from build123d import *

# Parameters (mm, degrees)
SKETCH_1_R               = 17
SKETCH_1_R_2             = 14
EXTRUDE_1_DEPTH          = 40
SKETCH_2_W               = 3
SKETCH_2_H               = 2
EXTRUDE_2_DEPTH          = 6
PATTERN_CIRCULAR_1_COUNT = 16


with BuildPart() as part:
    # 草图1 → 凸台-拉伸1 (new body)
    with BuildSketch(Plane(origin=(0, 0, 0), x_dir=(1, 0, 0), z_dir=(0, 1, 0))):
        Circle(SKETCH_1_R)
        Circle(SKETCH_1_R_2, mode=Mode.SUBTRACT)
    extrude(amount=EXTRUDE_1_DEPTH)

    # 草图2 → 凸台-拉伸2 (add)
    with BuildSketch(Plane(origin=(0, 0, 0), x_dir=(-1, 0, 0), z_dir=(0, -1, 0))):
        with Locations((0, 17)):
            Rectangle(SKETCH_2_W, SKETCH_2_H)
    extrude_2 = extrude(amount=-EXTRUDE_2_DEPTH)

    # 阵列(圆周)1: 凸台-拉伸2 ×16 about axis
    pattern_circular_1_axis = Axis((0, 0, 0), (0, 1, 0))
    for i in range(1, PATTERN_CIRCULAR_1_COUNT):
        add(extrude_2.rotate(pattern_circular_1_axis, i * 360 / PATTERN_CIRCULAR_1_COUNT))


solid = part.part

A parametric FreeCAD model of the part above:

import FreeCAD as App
import Part
import Sketcher
Q = App.Units.Quantity

doc = App.newDocument("Part")
params = doc.addObject("Spreadsheet::Sheet", "Params")
for row, (alias, value) in enumerate([
    ("sketch1_diameter", "34 mm"),
    ("sketch1_diameter2", "28 mm"),
    ("pad1_length", "40 mm"),
    ("sketch2_width", "3 mm"),
    ("sketch2_height", "2 mm"),
    ("pad2_length", "6 mm"),
], start=1):
    params.set(f"A{row}", alias)
    params.set(f"B{row}", "=" + value)
    params.setAlias(f"B{row}", alias)

body = doc.addObject("PartDesign::Body", "Body")

# Sketch on XZ plane
sketch1 = body.newObject("Sketcher::SketchObject", "Sketch")
sketch1.AttachmentSupport = (doc.getObject("XZ_Plane"), [""])
sketch1.MapMode = "FlatFace"
sketch1.addGeometry(Part.Circle(App.Vector(0, 0, 0), App.Vector(0, 0, 1), 17), False)
sketch1.addGeometry(Part.Circle(App.Vector(0, 0, 0), App.Vector(0, 0, 1), 14), False)
sketch1.addConstraint(Sketcher.Constraint("Coincident", 0, 3, -1, 1))
sketch1.addConstraint(Sketcher.Constraint("Coincident", 1, 3, -1, 1))
sketch1.addConstraint(Sketcher.Constraint("Diameter", 0, Q("34 mm")))
sketch1.addConstraint(Sketcher.Constraint("Diameter", 1, Q("28 mm")))
sketch1.setExpression("Constraints[2]", "Params.sketch1_diameter")
sketch1.setExpression("Constraints[3]", "Params.sketch1_diameter2")
pad1 = body.newObject("PartDesign::Pad", "Pad")
pad1.Profile = sketch1
pad1.setExpression("Length", "Params.pad1_length")
pad1.Reversed = True

# Sketch on XZ plane
sketch2 = body.newObject("Sketcher::SketchObject", "Sketch001")
sketch2.AttachmentSupport = (doc.getObject("XZ_Plane"), [""])
sketch2.MapMode = "FlatFace"
sketch2.addGeometry(Part.LineSegment(App.Vector(1.5, -18, 0), App.Vector(1.5, -16, 0)), False)
sketch2.addGeometry(Part.LineSegment(App.Vector(1.5, -16, 0), App.Vector(-1.5, -16, 0)), False)
sketch2.addGeometry(Part.LineSegment(App.Vector(-1.5, -16, 0), App.Vector(-1.5, -18, 0)), False)
sketch2.addGeometry(Part.LineSegment(App.Vector(-1.5, -18, 0), App.Vector(1.5, -18, 0)), False)
sketch2.addConstraint(Sketcher.Constraint("Coincident", 0, 2, 1, 1))
sketch2.addConstraint(Sketcher.Constraint("Coincident", 1, 2, 2, 1))
sketch2.addConstraint(Sketcher.Constraint("Coincident", 2, 2, 3, 1))
sketch2.addConstraint(Sketcher.Constraint("Coincident", 3, 2, 0, 1))
sketch2.addConstraint(Sketcher.Constraint("Vertical", 0))
sketch2.addConstraint(Sketcher.Constraint("Horizontal", 1))
sketch2.addConstraint(Sketcher.Constraint("Vertical", 2))
sketch2.addConstraint(Sketcher.Constraint("Horizontal", 3))
sketch2.addConstraint(Sketcher.Constraint("DistanceX", 1, 2, 1, 1, Q("3 mm")))
sketch2.addConstraint(Sketcher.Constraint("DistanceY", 0, 1, 0, 2, Q("2 mm")))
sketch2.addConstraint(Sketcher.Constraint("DistanceY", 0, 2, -1, 1, Q("16 mm")))
sketch2.addConstraint(Sketcher.Constraint("DistanceX", -1, 1, 0, 2, Q("1.5 mm")))
sketch2.setExpression("Constraints[8]", "Params.sketch2_width")
sketch2.setExpression("Constraints[9]", "Params.sketch2_height")
pad2 = body.newObject("PartDesign::Pad", "Pad001")
pad2.Profile = sketch2
pad2.setExpression("Length", "Params.pad2_length")
pad2.Reversed = True
doc.recompute()

polarpattern = body.newObject("PartDesign::PolarPattern", "PolarPattern")
polarpattern.Originals = [pad2]
polarpattern.Axis = (doc.getObject("Y_Axis"), [""])
polarpattern.Angle = 360
polarpattern.Occurrences = 16
body.Tip = polarpattern

doc.recompute()
